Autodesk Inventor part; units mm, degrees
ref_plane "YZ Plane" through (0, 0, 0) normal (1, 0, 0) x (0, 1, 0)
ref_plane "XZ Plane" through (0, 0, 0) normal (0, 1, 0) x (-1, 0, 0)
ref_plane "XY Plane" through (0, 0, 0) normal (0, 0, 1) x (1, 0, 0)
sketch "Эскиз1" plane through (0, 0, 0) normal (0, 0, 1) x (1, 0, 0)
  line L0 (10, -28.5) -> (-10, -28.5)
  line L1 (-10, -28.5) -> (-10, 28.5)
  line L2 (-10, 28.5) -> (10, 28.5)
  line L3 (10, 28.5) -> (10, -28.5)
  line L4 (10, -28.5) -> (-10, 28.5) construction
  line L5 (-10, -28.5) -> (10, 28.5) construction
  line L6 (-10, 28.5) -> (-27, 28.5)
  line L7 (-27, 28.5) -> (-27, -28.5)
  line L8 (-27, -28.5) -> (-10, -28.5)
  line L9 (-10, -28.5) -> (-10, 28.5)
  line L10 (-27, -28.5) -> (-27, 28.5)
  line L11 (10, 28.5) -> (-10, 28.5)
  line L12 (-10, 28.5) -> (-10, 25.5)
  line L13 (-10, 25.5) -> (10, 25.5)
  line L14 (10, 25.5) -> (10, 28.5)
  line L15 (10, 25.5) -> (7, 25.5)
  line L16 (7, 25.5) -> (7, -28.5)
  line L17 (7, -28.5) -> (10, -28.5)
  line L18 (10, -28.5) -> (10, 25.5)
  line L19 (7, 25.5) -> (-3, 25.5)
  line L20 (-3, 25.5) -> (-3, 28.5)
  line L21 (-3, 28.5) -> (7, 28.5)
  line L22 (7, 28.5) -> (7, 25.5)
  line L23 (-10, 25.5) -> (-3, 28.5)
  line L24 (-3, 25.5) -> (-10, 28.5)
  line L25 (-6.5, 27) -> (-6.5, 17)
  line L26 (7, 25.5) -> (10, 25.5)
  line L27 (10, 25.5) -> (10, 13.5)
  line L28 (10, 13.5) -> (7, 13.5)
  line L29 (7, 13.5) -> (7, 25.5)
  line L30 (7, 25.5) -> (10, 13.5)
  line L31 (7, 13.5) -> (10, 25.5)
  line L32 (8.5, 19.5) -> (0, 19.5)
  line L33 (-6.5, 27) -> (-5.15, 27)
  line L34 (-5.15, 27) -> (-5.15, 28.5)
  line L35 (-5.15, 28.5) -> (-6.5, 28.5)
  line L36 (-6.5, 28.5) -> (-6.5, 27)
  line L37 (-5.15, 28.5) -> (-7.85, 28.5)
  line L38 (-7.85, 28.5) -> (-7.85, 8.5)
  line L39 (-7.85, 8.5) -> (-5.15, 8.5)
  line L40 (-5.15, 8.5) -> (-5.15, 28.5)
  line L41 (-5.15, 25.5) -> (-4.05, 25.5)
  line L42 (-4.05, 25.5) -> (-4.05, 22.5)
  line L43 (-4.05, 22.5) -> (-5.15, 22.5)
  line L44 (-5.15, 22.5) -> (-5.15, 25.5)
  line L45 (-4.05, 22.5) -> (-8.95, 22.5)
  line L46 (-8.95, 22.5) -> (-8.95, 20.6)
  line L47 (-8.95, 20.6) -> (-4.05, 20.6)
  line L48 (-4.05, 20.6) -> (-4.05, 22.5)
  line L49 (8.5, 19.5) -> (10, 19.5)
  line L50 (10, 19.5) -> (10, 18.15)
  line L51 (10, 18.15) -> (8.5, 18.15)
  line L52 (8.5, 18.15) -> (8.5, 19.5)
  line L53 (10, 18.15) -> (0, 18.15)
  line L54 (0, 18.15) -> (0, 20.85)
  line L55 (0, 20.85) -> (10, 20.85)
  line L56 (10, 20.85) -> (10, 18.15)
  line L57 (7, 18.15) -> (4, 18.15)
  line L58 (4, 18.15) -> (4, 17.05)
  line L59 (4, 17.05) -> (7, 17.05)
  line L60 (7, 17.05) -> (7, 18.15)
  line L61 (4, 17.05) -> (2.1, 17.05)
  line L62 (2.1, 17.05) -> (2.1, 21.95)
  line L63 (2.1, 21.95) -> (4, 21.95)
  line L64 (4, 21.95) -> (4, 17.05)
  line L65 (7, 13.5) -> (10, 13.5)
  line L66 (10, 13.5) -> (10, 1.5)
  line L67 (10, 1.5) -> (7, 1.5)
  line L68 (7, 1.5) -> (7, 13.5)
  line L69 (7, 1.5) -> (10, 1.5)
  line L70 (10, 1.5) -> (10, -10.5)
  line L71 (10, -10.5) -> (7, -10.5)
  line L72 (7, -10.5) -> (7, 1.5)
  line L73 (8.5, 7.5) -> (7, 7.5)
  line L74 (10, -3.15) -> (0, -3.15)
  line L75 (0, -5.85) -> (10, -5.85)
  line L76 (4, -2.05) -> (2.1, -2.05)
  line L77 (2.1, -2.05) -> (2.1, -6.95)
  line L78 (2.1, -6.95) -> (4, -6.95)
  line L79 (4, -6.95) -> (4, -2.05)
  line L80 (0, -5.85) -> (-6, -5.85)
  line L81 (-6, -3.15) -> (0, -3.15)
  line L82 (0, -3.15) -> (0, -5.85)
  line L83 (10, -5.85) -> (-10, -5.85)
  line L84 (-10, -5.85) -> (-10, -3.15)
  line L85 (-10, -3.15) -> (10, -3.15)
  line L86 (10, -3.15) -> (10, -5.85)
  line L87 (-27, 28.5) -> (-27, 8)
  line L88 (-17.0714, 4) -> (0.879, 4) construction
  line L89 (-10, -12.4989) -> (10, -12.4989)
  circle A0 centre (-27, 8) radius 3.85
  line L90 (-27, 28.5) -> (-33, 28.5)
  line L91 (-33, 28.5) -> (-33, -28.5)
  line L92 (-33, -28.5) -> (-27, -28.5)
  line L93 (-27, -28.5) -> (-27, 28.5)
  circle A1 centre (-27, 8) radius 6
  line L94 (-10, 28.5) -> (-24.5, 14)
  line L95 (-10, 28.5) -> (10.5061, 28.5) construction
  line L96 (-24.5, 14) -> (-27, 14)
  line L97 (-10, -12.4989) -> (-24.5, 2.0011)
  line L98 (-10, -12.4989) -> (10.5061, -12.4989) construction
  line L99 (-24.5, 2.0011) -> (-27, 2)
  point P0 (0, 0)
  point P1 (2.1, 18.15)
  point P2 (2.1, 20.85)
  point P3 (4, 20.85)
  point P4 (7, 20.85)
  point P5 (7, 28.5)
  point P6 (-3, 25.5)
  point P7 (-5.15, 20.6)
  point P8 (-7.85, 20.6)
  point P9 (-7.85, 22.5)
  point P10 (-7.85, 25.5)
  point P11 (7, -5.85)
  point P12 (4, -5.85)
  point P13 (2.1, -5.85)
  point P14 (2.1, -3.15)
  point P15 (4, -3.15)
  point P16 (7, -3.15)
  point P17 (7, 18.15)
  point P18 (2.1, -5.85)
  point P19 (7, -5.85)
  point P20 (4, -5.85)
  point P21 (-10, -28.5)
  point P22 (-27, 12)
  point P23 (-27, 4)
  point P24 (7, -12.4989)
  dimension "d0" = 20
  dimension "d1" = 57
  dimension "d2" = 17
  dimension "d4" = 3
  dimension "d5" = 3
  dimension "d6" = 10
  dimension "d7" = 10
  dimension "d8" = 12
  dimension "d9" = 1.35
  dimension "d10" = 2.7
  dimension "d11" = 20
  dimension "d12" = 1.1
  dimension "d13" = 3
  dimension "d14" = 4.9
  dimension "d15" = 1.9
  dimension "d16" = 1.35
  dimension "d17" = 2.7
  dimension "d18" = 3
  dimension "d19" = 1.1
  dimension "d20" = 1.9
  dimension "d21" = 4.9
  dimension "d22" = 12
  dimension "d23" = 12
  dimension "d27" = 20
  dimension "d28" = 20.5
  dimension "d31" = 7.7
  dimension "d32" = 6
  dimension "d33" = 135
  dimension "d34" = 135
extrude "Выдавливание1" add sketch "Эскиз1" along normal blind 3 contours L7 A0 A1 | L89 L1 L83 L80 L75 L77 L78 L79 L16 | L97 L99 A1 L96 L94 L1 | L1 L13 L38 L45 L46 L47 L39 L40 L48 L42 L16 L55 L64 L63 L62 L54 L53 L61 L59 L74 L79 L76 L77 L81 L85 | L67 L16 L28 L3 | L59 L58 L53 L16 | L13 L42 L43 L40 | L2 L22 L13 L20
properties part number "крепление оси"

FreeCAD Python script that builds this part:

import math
import FreeCAD as App
import Part
import Sketcher
from FreeCAD import Vector

doc = App.newDocument("Part")
params = doc.addObject("Spreadsheet::Sheet", "Params")
for row, (alias, value) in enumerate([
    ("sketch1_radius", "6 mm"),
    ("sketch1_diameter", "7.7 mm"),
    ("sketch1_width", "17 mm"),
    ("sketch1_width2", "3 mm"),
    ("sketch1_width3", "10 mm"),
    ("pad1_length", "3 mm"),
], start=1):
    params.set(f"A{row}", alias)
    params.set(f"B{row}", "=" + value)
    params.setAlias(f"B{row}", alias)

body = doc.addObject("PartDesign::Body", "Body")

# Sketch on XY plane
sketch1 = doc.addObject("Sketcher::SketchObject", "Sketch")
body.addObject(sketch1)
sketch1.AttachmentSupport = (doc.XY_Plane, [""])
sketch1.MapMode = "FlatFace"
sketch1.addGeometry(Part.LineSegment(Vector(-24.5, 2.0011, 0), Vector(-10, -12.4989, 0)), False)
sketch1.addGeometry(Part.LineSegment(Vector(-10, -12.4989, 0), Vector(7, -12.4989, 0)), False)
sketch1.addGeometry(Part.LineSegment(Vector(7, -12.4989, 0), Vector(7, -5.85, 0)), False)
sketch1.addGeometry(Part.LineSegment(Vector(7, -5.85, 0), Vector(4, -5.85, 0)), False)
sketch1.addGeometry(Part.LineSegment(Vector(4, -5.85, 0), Vector(4, -6.95, 0)), False)
sketch1.addGeometry(Part.LineSegment(Vector(4, -6.95, 0), Vector(2.1, -6.95, 0)), False)
sketch1.addGeometry(Part.LineSegment(Vector(2.1, -6.95, 0), Vector(2.1, -5.85, 0)), False)
sketch1.addGeometry(Part.LineSegment(Vector(2.1, -5.85, 0), Vector(-10, -5.85, 0)), False)
sketch1.addGeometry(Part.LineSegment(Vector(-10, -5.85, 0), Vector(-10, -3.15, 0)), False)
sketch1.addGeometry(Part.LineSegment(Vector(-10, -3.15, 0), Vector(2.1, -3.15, 0)), False)
sketch1.addGeometry(Part.LineSegment(Vector(2.1, -3.15, 0), Vector(2.1, -2.05, 0)), False)
sketch1.addGeometry(Part.LineSegment(Vector(2.1, -2.05, 0), Vector(4, -2.05, 0)), False)
sketch1.addGeometry(Part.LineSegment(Vector(4, -2.05, 0), Vector(4, -3.15, 0)), False)
sketch1.addGeometry(Part.LineSegment(Vector(4, -3.15, 0), Vector(7, -3.15, 0)), False)
sketch1.addGeometry(Part.LineSegment(Vector(7, -3.15, 0), Vector(7, 1.5, 0)), False)
sketch1.addGeometry(Part.LineSegment(Vector(7, 1.5, 0), Vector(10, 1.5, 0)), False)
sketch1.addGeometry(Part.LineSegment(Vector(10, 1.5, 0), Vector(10, 13.5, 0)), False)
sketch1.addGeometry(Part.LineSegment(Vector(10, 13.5, 0), Vector(7, 13.5, 0)), False)
sketch1.addGeometry(Part.LineSegment(Vector(7, 13.5, 0), Vector(7, 18.15, 0)), False)
sketch1.addGeometry(Part.LineSegment(Vector(7, 18.15, 0), Vector(4, 18.15, 0)), False)
sketch1.addGeometry(Part.LineSegment(Vector(4, 18.15, 0), Vector(4, 17.05, 0)), False)
sketch1.addGeometry(Part.LineSegment(Vector(4, 17.05, 0), Vector(2.1, 17.05, 0)), False)
sketch1.addGeometry(Part.LineSegment(Vector(2.1, 17.05, 0), Vector(2.1, 18.15, 0)), False)
sketch1.addGeometry(Part.LineSegment(Vector(2.1, 18.15, 0), Vector(0, 18.15, 0)), False)
sketch1.addGeometry(Part.LineSegment(Vector(0, 18.15, 0), Vector(0, 20.85, 0)), False)
sketch1.addGeometry(Part.LineSegment(Vector(0, 20.85, 0), Vector(2.1, 20.85, 0)), False)
sketch1.addGeometry(Part.LineSegment(Vector(2.1, 20.85, 0), Vector(2.1, 21.95, 0)), False)
sketch1.addGeometry(Part.LineSegment(Vector(2.1, 21.95, 0), Vector(4, 21.95, 0)), False)
sketch1.addGeometry(Part.LineSegment(Vector(4, 21.95, 0), Vector(4, 20.85, 0)), False)
sketch1.addGeometry(Part.LineSegment(Vector(4, 20.85, 0), Vector(7, 20.85, 0)), False)
sketch1.addGeometry(Part.LineSegment(Vector(7, 20.85, 0), Vector(7, 28.5, 0)), False)
sketch1.addGeometry(Part.LineSegment(Vector(7, 28.5, 0), Vector(-3, 28.5, 0)), False)
sketch1.addGeometry(Part.LineSegment(Vector(-3, 28.5, 0), Vector(-3, 25.5, 0)), False)
sketch1.addGeometry(Part.LineSegment(Vector(-3, 25.5, 0), Vector(-5.15, 25.5, 0)), False)
sketch1.addGeometry(Part.LineSegment(Vector(-5.15, 25.5, 0), Vector(-5.15, 22.5, 0)), False)
sketch1.addGeometry(Part.LineSegment(Vector(-5.15, 22.5, 0), Vector(-4.05, 22.5, 0)), False)
sketch1.addGeometry(Part.LineSegment(Vector(-4.05, 22.5, 0), Vector(-4.05, 20.6, 0)), False)
sketch1.addGeometry(Part.LineSegment(Vector(-4.05, 20.6, 0), Vector(-5.15, 20.6, 0)), False)
sketch1.addGeometry(Part.LineSegment(Vector(-5.15, 20.6, 0), Vector(-5.15, 8.5, 0)), False)
sketch1.addGeometry(Part.LineSegment(Vector(-5.15, 8.5, 0), Vector(-7.85, 8.5, 0)), False)
sketch1.addGeometry(Part.LineSegment(Vector(-7.85, 8.5, 0), Vector(-7.85, 20.6, 0)), False)
sketch1.addGeometry(Part.LineSegment(Vector(-7.85, 20.6, 0), Vector(-8.95, 20.6, 0)), False)
sketch1.addGeometry(Part.LineSegment(Vector(-8.95, 20.6, 0), Vector(-8.95, 22.5, 0)), False)
sketch1.addGeometry(Part.LineSegment(Vector(-8.95, 22.5, 0), Vector(-7.85, 22.5, 0)), False)
sketch1.addGeometry(Part.LineSegment(Vector(-7.85, 22.5, 0), Vector(-7.85, 25.5, 0)), False)
sketch1.addGeometry(Part.LineSegment(Vector(-7.85, 25.5, 0), Vector(-10, 25.5, 0)), False)
sketch1.addGeometry(Part.LineSegment(Vector(-10, 25.5, 0), Vector(-10, 28.5, 0)), False)
sketch1.addGeometry(Part.LineSegment(Vector(-10, 28.5, 0), Vector(-24.5, 14, 0)), False)
sketch1.addGeometry(Part.LineSegment(Vector(-24.5, 14, 0), Vector(-27, 14, 0)), False)
sketch1.addGeometry(Part.ArcOfCircle(Part.Circle(Vector(-27, 8, 0), Vector(0, 0, 1), 6), math.radians(90), math.radians(270)), False)
sketch1.addGeometry(Part.LineSegment(Vector(-27, 2, 0), Vector(-24.5, 2.0011, 0)), False)
sketch1.addGeometry(Part.Circle(Vector(-27, 8, 0), Vector(0, 0, 1), 3.85), False)
sketch1.addConstraint(Sketcher.Constraint("Coincident", 0, 2, 1, 1))
sketch1.addConstraint(Sketcher.Constraint("Coincident", 1, 2, 2, 1))
sketch1.addConstraint(Sketcher.Constraint("Coincident", 2, 2, 3, 1))
sketch1.addConstraint(Sketcher.Constraint("Coincident", 3, 2, 4, 1))
sketch1.addConstraint(Sketcher.Constraint("Coincident", 4, 2, 5, 1))
sketch1.addConstraint(Sketcher.Constraint("Coincident", 5, 2, 6, 1))
sketch1.addConstraint(Sketcher.Constraint("Coincident", 6, 2, 7, 1))
sketch1.addConstraint(Sketcher.Constraint("Coincident", 7, 2, 8, 1))
sketch1.addConstraint(Sketcher.Constraint("Coincident", 8, 2, 9, 1))
sketch1.addConstraint(Sketcher.Constraint("Coincident", 9, 2, 10, 1))
sketch1.addConstraint(Sketcher.Constraint("Coincident", 10, 2, 11, 1))
sketch1.addConstraint(Sketcher.Constraint("Coincident", 11, 2, 12, 1))
sketch1.addConstraint(Sketcher.Constraint("Coincident", 12, 2, 13, 1))
sketch1.addConstraint(Sketcher.Constraint("Coincident", 13, 2, 14, 1))
sketch1.addConstraint(Sketcher.Constraint("Coincident", 14, 2, 15, 1))
sketch1.addConstraint(Sketcher.Constraint("Coincident", 15, 2, 16, 1))
sketch1.addConstraint(Sketcher.Constraint("Coincident", 16, 2, 17, 1))
sketch1.addConstraint(Sketcher.Constraint("Coincident", 17, 2, 18, 1))
sketch1.addConstraint(Sketcher.Constraint("Coincident", 18, 2, 19, 1))
sketch1.addConstraint(Sketcher.Constraint("Coincident", 19, 2, 20, 1))
sketch1.addConstraint(Sketcher.Constraint("Coincident", 20, 2, 21, 1))
sketch1.addConstraint(Sketcher.Constraint("Coincident", 21, 2, 22, 1))
sketch1.addConstraint(Sketcher.Constraint("Coincident", 22, 2, 23, 1))
sketch1.addConstraint(Sketcher.Constraint("Coincident", 23, 2, 24, 1))
sketch1.addConstraint(Sketcher.Constraint("Coincident", 24, 2, 25, 1))
sketch1.addConstraint(Sketcher.Constraint("Coincident", 25, 2, 26, 1))
sketch1.addConstraint(Sketcher.Constraint("Coincident", 26, 2, 27, 1))
sketch1.addConstraint(Sketcher.Constraint("Coincident", 27, 2, 28, 1))
sketch1.addConstraint(Sketcher.Constraint("Coincident", 28, 2, 29, 1))
sketch1.addConstraint(Sketcher.Constraint("Coincident", 29, 2, 30, 1))
sketch1.addConstraint(Sketcher.Constraint("Coincident", 30, 2, 31, 1))
sketch1.addConstraint(Sketcher.Constraint("Coincident", 31, 2, 32, 1))
sketch1.addConstraint(Sketcher.Constraint("Coincident", 32, 2, 33, 1))
sketch1.addConstraint(Sketcher.Constraint("Coincident", 33, 2, 34, 1))
sketch1.addConstraint(Sketcher.Constraint("Coincident", 34, 2, 35, 1))
sketch1.addConstraint(Sketcher.Constraint("Coincident", 35, 2, 36, 1))
sketch1.addConstraint(Sketcher.Constraint("Coincident", 36, 2, 37, 1))
sketch1.addConstraint(Sketcher.Constraint("Coincident", 37, 2, 38, 1))
sketch1.addConstraint(Sketcher.Constraint("Coincident", 38, 2, 39, 1))
sketch1.addConstraint(Sketcher.Constraint("Coincident", 39, 2, 40, 1))
sketch1.addConstraint(Sketcher.Constraint("Coincident", 40, 2, 41, 1))
sketch1.addConstraint(Sketcher.Constraint("Coincident", 41, 2, 42, 1))
sketch1.addConstraint(Sketcher.Constraint("Coincident", 42, 2, 43, 1))
sketch1.addConstraint(Sketcher.Constraint("Coincident", 43, 2, 44, 1))
sketch1.addConstraint(Sketcher.Constraint("Coincident", 44, 2, 45, 1))
sketch1.addConstraint(Sketcher.Constraint("Coincident", 45, 2, 46, 1))
sketch1.addConstraint(Sketcher.Constraint("Coincident", 46, 2, 47, 1))
sketch1.addConstraint(Sketcher.Constraint("Coincident", 47, 2, 48, 1))
sketch1.addConstraint(Sketcher.Constraint("Tangent", 48, 2, 49, 1))
sketch1.addConstraint(Sketcher.Constraint("Tangent", 49, 2, 50, 1))
sketch1.addConstraint(Sketcher.Constraint("Coincident", 50, 2, 0, 1))
sketch1.addConstraint(Sketcher.Constraint("Horizontal", 1))
sketch1.addConstraint(Sketcher.Constraint("Vertical", 2))
sketch1.addConstraint(Sketcher.Constraint("Horizontal", 3))
sketch1.addConstraint(Sketcher.Constraint("Vertical", 4))
sketch1.addConstraint(Sketcher.Constraint("Horizontal", 5))
sketch1.addConstraint(Sketcher.Constraint("Vertical", 6))
sketch1.addConstraint(Sketcher.Constraint("Horizontal", 7))
sketch1.addConstraint(Sketcher.Constraint("Vertical", 8))
sketch1.addConstraint(Sketcher.Constraint("Horizontal", 9))
sketch1.addConstraint(Sketcher.Constraint("Vertical", 10))
sketch1.addConstraint(Sketcher.Constraint("Horizontal", 11))
sketch1.addConstraint(Sketcher.Constraint("Vertical", 12))
sketch1.addConstraint(Sketcher.Constraint("Horizontal", 13))
sketch1.addConstraint(Sketcher.Constraint("Vertical", 14))
sketch1.addConstraint(Sketcher.Constraint("Horizontal", 15))
sketch1.addConstraint(Sketcher.Constraint("Vertical", 16))
sketch1.addConstraint(Sketcher.Constraint("Horizontal", 17))
sketch1.addConstraint(Sketcher.Constraint("Vertical", 18))
sketch1.addConstraint(Sketcher.Constraint("Horizontal", 19))
sketch1.addConstraint(Sketcher.Constraint("Vertical", 20))
sketch1.addConstraint(Sketcher.Constraint("Horizontal", 21))
sketch1.addConstraint(Sketcher.Constraint("Vertical", 22))
sketch1.addConstraint(Sketcher.Constraint("Horizontal", 23))
sketch1.addConstraint(Sketcher.Constraint("Vertical", 24))
sketch1.addConstraint(Sketcher.Constraint("Horizontal", 25))
sketch1.addConstraint(Sketcher.Constraint("Vertical", 26))
sketch1.addConstraint(Sketcher.Constraint("Horizontal", 27))
sketch1.addConstraint(Sketcher.Constraint("Vertical", 28))
sketch1.addConstraint(Sketcher.Constraint("Horizontal", 29))
sketch1.addConstraint(Sketcher.Constraint("Vertical", 30))
sketch1.addConstraint(Sketcher.Constraint("Horizontal", 31))
sketch1.addConstraint(Sketcher.Constraint("Vertical", 32))
sketch1.addConstraint(Sketcher.Constraint("Horizontal", 33))
sketch1.addConstraint(Sketcher.Constraint("Vertical", 34))
sketch1.addConstraint(Sketcher.Constraint("Horizontal", 35))
sketch1.addConstraint(Sketcher.Constraint("Vertical", 36))
sketch1.addConstraint(Sketcher.Constraint("Horizontal", 37))
sketch1.addConstraint(Sketcher.Constraint("Vertical", 38))
sketch1.addConstraint(Sketcher.Constraint("Horizontal", 39))
sketch1.addConstraint(Sketcher.Constraint("Vertical", 40))
sketch1.addConstraint(Sketcher.Constraint("Horizontal", 41))
sketch1.addConstraint(Sketcher.Constraint("Vertical", 42))
sketch1.addConstraint(Sketcher.Constraint("Horizontal", 43))
sketch1.addConstraint(Sketcher.Constraint("Vertical", 44))
sketch1.addConstraint(Sketcher.Constraint("Horizontal", 45))
sketch1.addConstraint(Sketcher.Constraint("Vertical", 46))
sketch1.addConstraint(Sketcher.Constraint("Horizontal", 48))
sketch1.addConstraint(Sketcher.Constraint("Coincident", 51, 3, 49, 3))
sketch1.addConstraint(Sketcher.Constraint("PointOnObject", 23, 2, -2))
sketch1.addConstraint(Sketcher.Constraint("Perpendicular", 0, 47))
sketch1.addConstraint(Sketcher.Constraint("Horizontal", 3, 2, 6, 2))
sketch1.addConstraint(Sketcher.Constraint("Horizontal", 9, 2, 12, 2))
sketch1.addConstraint(Sketcher.Constraint("Horizontal", 19, 2, 22, 2))
sketch1.addConstraint(Sketcher.Constraint("Horizontal", 25, 2, 28, 2))
sketch1.addConstraint(Sketcher.Constraint("Horizontal", 37, 2, 40, 2))
sketch1.addConstraint(Sketcher.Constraint("Horizontal", 35, 2, 42, 2))
sketch1.addConstraint(Sketcher.Constraint("Horizontal", 33, 2, 44, 2))
sketch1.addConstraint(Sketcher.Constraint("Horizontal", 31, 2, 46, 2))
sketch1.addConstraint(Sketcher.Constraint("Vertical", 0, 2, 7, 2))
sketch1.addConstraint(Sketcher.Constraint("Vertical", 6, 2, 9, 2))
sketch1.addConstraint(Sketcher.Constraint("Vertical", 4, 2, 11, 2))
sketch1.addConstraint(Sketcher.Constraint("Vertical", 2, 2, 13, 2))
sketch1.addConstraint(Sketcher.Constraint("Vertical", 14, 2, 17, 2))
sketch1.addConstraint(Sketcher.Constraint("Vertical", 12, 2, 19, 2))
sketch1.addConstraint(Sketcher.Constraint("Vertical", 10, 2, 21, 2))
sketch1.addConstraint(Sketcher.Constraint("Vertical", 22, 2, 25, 2))
sketch1.addConstraint(Sketcher.Constraint("Vertical", 20, 2, 27, 2))
sketch1.addConstraint(Sketcher.Constraint("Vertical", 18, 2, 29, 2))
sketch1.addConstraint(Sketcher.Constraint("Vertical", 34, 2, 37, 2))
sketch1.addConstraint(Sketcher.Constraint("Vertical", 40, 2, 43, 2))
sketch1.addConstraint(Sketcher.Constraint("Vertical", 8, 2, 45, 2))
sketch1.addConstraint(Sketcher.Constraint("Vertical", 48, 2, 49, 2))
sketch1.addConstraint(Sketcher.Constraint("Vertical", 47, 2, 50, 2))
sketch1.addConstraint(Sketcher.Constraint("Equal", 13, 15))
sketch1.addConstraint(Sketcher.Constraint("Equal", 37, 41))
sketch1.addConstraint(Sketcher.Constraint("Equal", 33, 45))
sketch1.addConstraint(Sketcher.Constraint("Equal", 43, 4))
sketch1.addConstraint(Sketcher.Constraint("Equal", 39, 8))
sketch1.addConstraint(Sketcher.Constraint("Equal", 6, 10))
sketch1.addConstraint(Sketcher.Constraint("Equal", 14, 18))
sketch1.addConstraint(Sketcher.Constraint("Equal", 12, 20))
sketch1.addConstraint(Sketcher.Constraint("Equal", 8, 24))
sketch1.addConstraint(Sketcher.Constraint("Equal", 22, 26))
sketch1.addConstraint(Sketcher.Constraint("Equal", 29, 32))
sketch1.addConstraint(Sketcher.Constraint("Equal", 32, 34))
sketch1.addConstraint(Sketcher.Constraint("Equal", 27, 36))
sketch1.addConstraint(Sketcher.Constraint("Equal", 9, 38))
sketch1.addConstraint(Sketcher.Constraint("Equal", 0, 47))
sketch1.addConstraint(Sketcher.Constraint("Radius", 49, 6.0))
sketch1.addConstraint(Sketcher.Constraint("Diameter", 51, 7.7))
sketch1.addConstraint(Sketcher.Constraint("DistanceX", 1, 1, 1, 2, 17.0))
sketch1.addConstraint(Sketcher.Constraint("DistanceX", 3, 2, 3, 1, 3.0))
sketch1.addConstraint(Sketcher.Constraint("DistanceX", 31, 2, 31, 1, 10.0))
sketch1.addConstraint(Sketcher.Constraint("DistanceY", 16, 1, 16, 2, 12.0))
sketch1.addConstraint(Sketcher.Constraint("DistanceX", 5, 2, 5, 1, 1.9))
sketch1.addConstraint(Sketcher.Constraint("DistanceX", 35, 1, 35, 2, 1.1))
sketch1.addConstraint(Sketcher.Constraint("DistanceX", 39, 2, 39, 1, 2.7))
sketch1.addConstraint(Sketcher.Constraint("DistanceX", 0, 2, -1, 1, 10.0))
sketch1.addConstraint(Sketcher.Constraint("DistanceX", 49, 3, 0, 2, 17.0))
sketch1.addConstraint(Sketcher.Constraint("DistanceX", 48, 2, 48, 1, 2.5))
sketch1.addConstraint(Sketcher.Constraint("DistanceY", -1, 1, 49, 3, 8.0))
sketch1.addConstraint(Sketcher.Constraint("DistanceY", 14, 1, 14, 2, 4.65))
sketch1.addConstraint(Sketcher.Constraint("DistanceY", 30, 1, 30, 2, 7.65))
sketch1.setExpression("Constraints[139]", "Params.sketch1_radius")
sketch1.setExpression("Constraints[140]", "Params.sketch1_diameter")
sketch1.setExpression("Constraints[141]", "Params.sketch1_width")
sketch1.setExpression("Constraints[142]", "Params.sketch1_width2")
sketch1.setExpression("Constraints[143]", "Params.sketch1_width3")
pad1 = doc.addObject("PartDesign::Pad", "Pad")
body.addObject(pad1)
pad1.Profile = sketch1
pad1.setExpression("Length", "Params.pad1_length")

doc.recompute()
